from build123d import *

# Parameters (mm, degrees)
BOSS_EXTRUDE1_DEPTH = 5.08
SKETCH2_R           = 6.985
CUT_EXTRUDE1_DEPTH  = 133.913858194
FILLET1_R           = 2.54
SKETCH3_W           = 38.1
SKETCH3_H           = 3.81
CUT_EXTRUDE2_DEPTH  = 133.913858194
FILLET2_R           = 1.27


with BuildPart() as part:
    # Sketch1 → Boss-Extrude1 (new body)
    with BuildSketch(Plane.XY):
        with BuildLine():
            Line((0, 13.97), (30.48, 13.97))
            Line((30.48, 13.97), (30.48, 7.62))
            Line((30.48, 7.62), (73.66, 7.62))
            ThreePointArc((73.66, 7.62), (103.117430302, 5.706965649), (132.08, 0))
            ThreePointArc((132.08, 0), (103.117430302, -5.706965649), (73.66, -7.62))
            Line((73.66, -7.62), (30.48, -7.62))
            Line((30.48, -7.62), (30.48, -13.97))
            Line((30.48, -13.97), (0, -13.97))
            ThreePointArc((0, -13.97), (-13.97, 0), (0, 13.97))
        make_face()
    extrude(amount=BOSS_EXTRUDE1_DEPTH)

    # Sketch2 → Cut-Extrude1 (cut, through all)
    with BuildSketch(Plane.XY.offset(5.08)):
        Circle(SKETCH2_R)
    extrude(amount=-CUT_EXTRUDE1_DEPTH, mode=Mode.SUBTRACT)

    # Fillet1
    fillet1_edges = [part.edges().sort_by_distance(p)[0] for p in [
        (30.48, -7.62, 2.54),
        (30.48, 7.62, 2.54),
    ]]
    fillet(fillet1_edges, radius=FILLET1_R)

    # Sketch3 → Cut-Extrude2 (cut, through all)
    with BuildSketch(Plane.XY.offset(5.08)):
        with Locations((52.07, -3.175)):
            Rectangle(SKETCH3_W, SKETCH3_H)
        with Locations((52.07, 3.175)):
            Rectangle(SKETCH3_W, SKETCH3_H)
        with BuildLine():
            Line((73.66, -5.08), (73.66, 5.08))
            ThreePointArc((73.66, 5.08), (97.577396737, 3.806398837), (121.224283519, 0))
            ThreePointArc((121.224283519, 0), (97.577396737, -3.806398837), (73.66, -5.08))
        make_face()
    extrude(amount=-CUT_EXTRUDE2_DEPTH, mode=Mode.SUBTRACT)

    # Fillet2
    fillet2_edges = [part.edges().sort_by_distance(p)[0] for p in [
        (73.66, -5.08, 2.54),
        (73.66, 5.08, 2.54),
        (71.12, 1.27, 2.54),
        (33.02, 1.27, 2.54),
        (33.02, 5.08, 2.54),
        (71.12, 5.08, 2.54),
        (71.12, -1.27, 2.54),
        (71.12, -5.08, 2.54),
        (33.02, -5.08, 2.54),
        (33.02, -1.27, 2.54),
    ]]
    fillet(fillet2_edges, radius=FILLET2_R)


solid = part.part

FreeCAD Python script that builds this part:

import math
import FreeCAD as App
import Part
import Sketcher
Q = App.Units.Quantity


def edges_at(feature, points):
    """Names of the edges that pass closest to the given points."""
    edges = feature.Shape.Edges
    near = lambda p: min(range(len(edges)), key=lambda i: edges[i].distToShape(Part.Vertex(*p))[0])
    return sorted({f"Edge{near(p) + 1}" for p in points})


def add_polygon(sketch, points):
    """Adds a closed chain of lines whose ends are joined by coincident constraints."""
    first, n = sketch.GeometryCount, len(points)
    for a, b in zip(points, points[1:] + points[:1]):
        sketch.addGeometry(Part.LineSegment(App.Vector(*a, 0), App.Vector(*b, 0)), False)
    for i in range(n):
        sketch.addConstraint(Sketcher.Constraint("Coincident", first + i, 2, first + (i + 1) % n, 1))

doc = App.newDocument("Part")
body = doc.addObject("PartDesign::Body", "Body")

# Sketch on XY plane
sketch1 = body.newObject("Sketcher::SketchObject", "Sketch")
sketch1.AttachmentSupport = (doc.getObject("XY_Plane"), [""])
sketch1.MapMode = "FlatFace"
sketch1.addGeometry([
    Part.LineSegment(App.Vector(30, 14, 0), App.Vector(0, 14, 0)),  # 0
    Part.ArcOfCircle(Part.Circle(App.Vector(0, 0, 0), App.Vector(0, 0, 1), 14), math.radians(90), math.radians(270)),  # 1
    Part.LineSegment(App.Vector(0, -14, 0), App.Vector(30, -14, 0)),  # 2
    Part.LineSegment(App.Vector(30, -14, 0), App.Vector(30, -8, 0)),  # 3
    Part.LineSegment(App.Vector(30, -8, 0), App.Vector(74, -8, 0)),  # 4
    Part.ArcOfCircle(Part.Circle(App.Vector(74, 220, 0), App.Vector(0, 0, 1), 228), math.radians(-90), math.radians(-75.14)),  # 5
    Part.ArcOfCircle(Part.Circle(App.Vector(74, -220, 0), App.Vector(0, 0, 1), 228), math.radians(75.14), math.radians(90)),  # 6
    Part.LineSegment(App.Vector(74, 8, 0), App.Vector(30, 8, 0)),  # 7
    Part.LineSegment(App.Vector(30, 8, 0), App.Vector(30, 14, 0)),  # 8
], False)
sketch1.addConstraint([
    Sketcher.Constraint("Tangent", 0, 2, 1, 1),
    Sketcher.Constraint("Tangent", 1, 2, 2, 1),
    Sketcher.Constraint("Coincident", 2, 2, 3, 1),
    Sketcher.Constraint("Coincident", 3, 2, 4, 1),
    Sketcher.Constraint("Tangent", 4, 2, 5, 1),
    Sketcher.Constraint("Coincident", 5, 2, 6, 1),
    Sketcher.Constraint("Tangent", 6, 2, 7, 1),
    Sketcher.Constraint("Coincident", 7, 2, 8, 1),
    Sketcher.Constraint("Coincident", 8, 2, 0, 1),
    Sketcher.Constraint("Horizontal", 0),
    Sketcher.Constraint("Horizontal", 2),
    Sketcher.Constraint("Vertical", 3),
    Sketcher.Constraint("Horizontal", 4),
    Sketcher.Constraint("Horizontal", 7),
    Sketcher.Constraint("Vertical", 8),
    Sketcher.Constraint("Coincident", 1, 3, -1, 1),
    Sketcher.Constraint("Equal", 5, 6),
    Sketcher.Constraint("Symmetric", 5, 3, 6, 3, -1),
    Sketcher.Constraint("Vertical", 3, 2, 7, 2),
    Sketcher.Constraint("Radius", 1, Q("0.55 in")),
    Sketcher.Constraint("DistanceX", 0, 2, 0, 1, Q("1.2 in")),
    Sketcher.Constraint("DistanceX", 4, 1, 4, 2, Q("1.7 in")),
    Sketcher.Constraint("DistanceX", 3, 2, 5, 2, Q("4 in")),
    Sketcher.Constraint("DistanceY", 3, 1, 3, 2, Q("0.25 in")),
])
pad1 = body.newObject("PartDesign::Pad", "Pad")
pad1.Profile = sketch1
pad1.Length = Q("0.2 in")

# Sketch on XY plane
sketch2 = body.newObject("Sketcher::SketchObject", "Sketch001")
sketch2.AttachmentSupport = (doc.getObject("XY_Plane"), [""])
sketch2.MapMode = "FlatFace"
sketch2.AttachmentOffset = App.Placement(App.Vector(0, 0, 0.2 * 25.4), App.Rotation())
sketch2.addGeometry(Part.Circle(App.Vector(0, 0, 0), App.Vector(0, 0, 1), 7), False)
sketch2.addConstraint([
    Sketcher.Constraint("Coincident", 0, 3, -1, 1),
    Sketcher.Constraint("Diameter", 0, Q("0.55 in")),
])
pocket1 = body.newObject("PartDesign::Pocket", "Pocket")
pocket1.Profile = sketch2
pocket1.Type = "ThroughAll"
doc.recompute()

fillet = body.newObject("PartDesign::Fillet", "Fillet")
fillet.Base = (pocket1, edges_at(pocket1, [(30.48, -7.62, 2.54), (30.48, 7.62, 2.54)]))
fillet.Radius = Q("0.1 in")

# Sketch on XY plane
sketch3 = body.newObject("Sketcher::SketchObject", "Sketch002")
sketch3.AttachmentSupport = (doc.getObject("XY_Plane"), [""])
sketch3.MapMode = "FlatFace"
sketch3.AttachmentOffset = App.Placement(App.Vector(0, 0, 0.2 * 25.4), App.Rotation())
add_polygon(sketch3, [(33, -1.3), (33, -5.1), (71.1, -5.1), (71.1, -1.3)])  # lines 0-3
add_polygon(sketch3, [(33, 5.1), (33, 1.3), (71.1, 1.3), (71.1, 5.1)])  # lines 4-7
sketch3.addGeometry(Part.LineSegment(App.Vector(73.7, 5.1, 0), App.Vector(73.7, -5.1, 0)), False)  # 8
sketch3.addGeometry(Part.ArcOfCircle(Part.Circle(App.Vector(73.7, 220.1, 0), App.Vector(0, 0, 1), 225.2), math.radians(-90), math.radians(-77.81)), False)  # 9
sketch3.addGeometry(Part.ArcOfCircle(Part.Circle(App.Vector(73.7, -220.1, 0), App.Vector(0, 0, 1), 225.2), math.radians(77.81), math.radians(90)), False)  # 10
sketch3.addConstraint([
    Sketcher.Constraint("Coincident", 8, 2, 9, 1),
    Sketcher.Constraint("Coincident", 9, 2, 10, 1),
    Sketcher.Constraint("Coincident", 10, 2, 8, 1),
    Sketcher.Constraint("Vertical", 0),
    Sketcher.Constraint("Horizontal", 1),
    Sketcher.Constraint("Vertical", 2),
    Sketcher.Constraint("Horizontal", 3),
    Sketcher.Constraint("Vertical", 4),
    Sketcher.Constraint("Horizontal", 5),
    Sketcher.Constraint("Vertical", 6),
    Sketcher.Constraint("Horizontal", 7),
    Sketcher.Constraint("Vertical", 8),
    Sketcher.Constraint("Equal", 9, 10),
    Sketcher.Constraint("Symmetric", 9, 3, 10, 3, -1),
    Sketcher.Constraint("Symmetric", 3, 2, 4, 2, -1),
    Sketcher.Constraint("Symmetric", 1, 2, 6, 2, -1),
    Sketcher.Constraint("Horizontal", 1, 2, 8, 2),
    Sketcher.Constraint("Vertical", 10, 3, 8, 2),
    Sketcher.Constraint("DistanceX", 1, 1, 1, 2, Q("1.5 in")),
    Sketcher.Constraint("DistanceY", 8, 2, 8, 1, Q("0.4 in")),
    Sketcher.Constraint("DistanceY", 0, 2, 0, 1, Q("0.15 in")),
    Sketcher.Constraint("DistanceX", -1, 1, 9, 3, Q("2.9 in")),
    Sketcher.Constraint("DistanceX", -1, 1, 0, 2, Q("1.3 in")),
    Sketcher.Constraint("Radius", 9, 225.213333),
])
pocket2 = body.newObject("PartDesign::Pocket", "Pocket001")
pocket2.Profile = sketch3
pocket2.Type = "ThroughAll"
doc.recompute()

fillet2 = body.newObject("PartDesign::Fillet", "Fillet001")
fillet2.Base = (pocket2, edges_at(pocket2, [
    (73.66, -5.08, 2.54),
    (73.66, 5.08, 2.54),
    (71.12, 1.27, 2.54),
    (33.02, 1.27, 2.54),
    (33.02, 5.08, 2.54),
    (71.12, 5.08, 2.54),
    (71.12, -1.27, 2.54),
    (71.12, -5.08, 2.54),
    (33.02, -5.08, 2.54),
    (33.02, -1.27, 2.54),
]))
fillet2.Radius = Q("0.05 in")

doc.recompute()
